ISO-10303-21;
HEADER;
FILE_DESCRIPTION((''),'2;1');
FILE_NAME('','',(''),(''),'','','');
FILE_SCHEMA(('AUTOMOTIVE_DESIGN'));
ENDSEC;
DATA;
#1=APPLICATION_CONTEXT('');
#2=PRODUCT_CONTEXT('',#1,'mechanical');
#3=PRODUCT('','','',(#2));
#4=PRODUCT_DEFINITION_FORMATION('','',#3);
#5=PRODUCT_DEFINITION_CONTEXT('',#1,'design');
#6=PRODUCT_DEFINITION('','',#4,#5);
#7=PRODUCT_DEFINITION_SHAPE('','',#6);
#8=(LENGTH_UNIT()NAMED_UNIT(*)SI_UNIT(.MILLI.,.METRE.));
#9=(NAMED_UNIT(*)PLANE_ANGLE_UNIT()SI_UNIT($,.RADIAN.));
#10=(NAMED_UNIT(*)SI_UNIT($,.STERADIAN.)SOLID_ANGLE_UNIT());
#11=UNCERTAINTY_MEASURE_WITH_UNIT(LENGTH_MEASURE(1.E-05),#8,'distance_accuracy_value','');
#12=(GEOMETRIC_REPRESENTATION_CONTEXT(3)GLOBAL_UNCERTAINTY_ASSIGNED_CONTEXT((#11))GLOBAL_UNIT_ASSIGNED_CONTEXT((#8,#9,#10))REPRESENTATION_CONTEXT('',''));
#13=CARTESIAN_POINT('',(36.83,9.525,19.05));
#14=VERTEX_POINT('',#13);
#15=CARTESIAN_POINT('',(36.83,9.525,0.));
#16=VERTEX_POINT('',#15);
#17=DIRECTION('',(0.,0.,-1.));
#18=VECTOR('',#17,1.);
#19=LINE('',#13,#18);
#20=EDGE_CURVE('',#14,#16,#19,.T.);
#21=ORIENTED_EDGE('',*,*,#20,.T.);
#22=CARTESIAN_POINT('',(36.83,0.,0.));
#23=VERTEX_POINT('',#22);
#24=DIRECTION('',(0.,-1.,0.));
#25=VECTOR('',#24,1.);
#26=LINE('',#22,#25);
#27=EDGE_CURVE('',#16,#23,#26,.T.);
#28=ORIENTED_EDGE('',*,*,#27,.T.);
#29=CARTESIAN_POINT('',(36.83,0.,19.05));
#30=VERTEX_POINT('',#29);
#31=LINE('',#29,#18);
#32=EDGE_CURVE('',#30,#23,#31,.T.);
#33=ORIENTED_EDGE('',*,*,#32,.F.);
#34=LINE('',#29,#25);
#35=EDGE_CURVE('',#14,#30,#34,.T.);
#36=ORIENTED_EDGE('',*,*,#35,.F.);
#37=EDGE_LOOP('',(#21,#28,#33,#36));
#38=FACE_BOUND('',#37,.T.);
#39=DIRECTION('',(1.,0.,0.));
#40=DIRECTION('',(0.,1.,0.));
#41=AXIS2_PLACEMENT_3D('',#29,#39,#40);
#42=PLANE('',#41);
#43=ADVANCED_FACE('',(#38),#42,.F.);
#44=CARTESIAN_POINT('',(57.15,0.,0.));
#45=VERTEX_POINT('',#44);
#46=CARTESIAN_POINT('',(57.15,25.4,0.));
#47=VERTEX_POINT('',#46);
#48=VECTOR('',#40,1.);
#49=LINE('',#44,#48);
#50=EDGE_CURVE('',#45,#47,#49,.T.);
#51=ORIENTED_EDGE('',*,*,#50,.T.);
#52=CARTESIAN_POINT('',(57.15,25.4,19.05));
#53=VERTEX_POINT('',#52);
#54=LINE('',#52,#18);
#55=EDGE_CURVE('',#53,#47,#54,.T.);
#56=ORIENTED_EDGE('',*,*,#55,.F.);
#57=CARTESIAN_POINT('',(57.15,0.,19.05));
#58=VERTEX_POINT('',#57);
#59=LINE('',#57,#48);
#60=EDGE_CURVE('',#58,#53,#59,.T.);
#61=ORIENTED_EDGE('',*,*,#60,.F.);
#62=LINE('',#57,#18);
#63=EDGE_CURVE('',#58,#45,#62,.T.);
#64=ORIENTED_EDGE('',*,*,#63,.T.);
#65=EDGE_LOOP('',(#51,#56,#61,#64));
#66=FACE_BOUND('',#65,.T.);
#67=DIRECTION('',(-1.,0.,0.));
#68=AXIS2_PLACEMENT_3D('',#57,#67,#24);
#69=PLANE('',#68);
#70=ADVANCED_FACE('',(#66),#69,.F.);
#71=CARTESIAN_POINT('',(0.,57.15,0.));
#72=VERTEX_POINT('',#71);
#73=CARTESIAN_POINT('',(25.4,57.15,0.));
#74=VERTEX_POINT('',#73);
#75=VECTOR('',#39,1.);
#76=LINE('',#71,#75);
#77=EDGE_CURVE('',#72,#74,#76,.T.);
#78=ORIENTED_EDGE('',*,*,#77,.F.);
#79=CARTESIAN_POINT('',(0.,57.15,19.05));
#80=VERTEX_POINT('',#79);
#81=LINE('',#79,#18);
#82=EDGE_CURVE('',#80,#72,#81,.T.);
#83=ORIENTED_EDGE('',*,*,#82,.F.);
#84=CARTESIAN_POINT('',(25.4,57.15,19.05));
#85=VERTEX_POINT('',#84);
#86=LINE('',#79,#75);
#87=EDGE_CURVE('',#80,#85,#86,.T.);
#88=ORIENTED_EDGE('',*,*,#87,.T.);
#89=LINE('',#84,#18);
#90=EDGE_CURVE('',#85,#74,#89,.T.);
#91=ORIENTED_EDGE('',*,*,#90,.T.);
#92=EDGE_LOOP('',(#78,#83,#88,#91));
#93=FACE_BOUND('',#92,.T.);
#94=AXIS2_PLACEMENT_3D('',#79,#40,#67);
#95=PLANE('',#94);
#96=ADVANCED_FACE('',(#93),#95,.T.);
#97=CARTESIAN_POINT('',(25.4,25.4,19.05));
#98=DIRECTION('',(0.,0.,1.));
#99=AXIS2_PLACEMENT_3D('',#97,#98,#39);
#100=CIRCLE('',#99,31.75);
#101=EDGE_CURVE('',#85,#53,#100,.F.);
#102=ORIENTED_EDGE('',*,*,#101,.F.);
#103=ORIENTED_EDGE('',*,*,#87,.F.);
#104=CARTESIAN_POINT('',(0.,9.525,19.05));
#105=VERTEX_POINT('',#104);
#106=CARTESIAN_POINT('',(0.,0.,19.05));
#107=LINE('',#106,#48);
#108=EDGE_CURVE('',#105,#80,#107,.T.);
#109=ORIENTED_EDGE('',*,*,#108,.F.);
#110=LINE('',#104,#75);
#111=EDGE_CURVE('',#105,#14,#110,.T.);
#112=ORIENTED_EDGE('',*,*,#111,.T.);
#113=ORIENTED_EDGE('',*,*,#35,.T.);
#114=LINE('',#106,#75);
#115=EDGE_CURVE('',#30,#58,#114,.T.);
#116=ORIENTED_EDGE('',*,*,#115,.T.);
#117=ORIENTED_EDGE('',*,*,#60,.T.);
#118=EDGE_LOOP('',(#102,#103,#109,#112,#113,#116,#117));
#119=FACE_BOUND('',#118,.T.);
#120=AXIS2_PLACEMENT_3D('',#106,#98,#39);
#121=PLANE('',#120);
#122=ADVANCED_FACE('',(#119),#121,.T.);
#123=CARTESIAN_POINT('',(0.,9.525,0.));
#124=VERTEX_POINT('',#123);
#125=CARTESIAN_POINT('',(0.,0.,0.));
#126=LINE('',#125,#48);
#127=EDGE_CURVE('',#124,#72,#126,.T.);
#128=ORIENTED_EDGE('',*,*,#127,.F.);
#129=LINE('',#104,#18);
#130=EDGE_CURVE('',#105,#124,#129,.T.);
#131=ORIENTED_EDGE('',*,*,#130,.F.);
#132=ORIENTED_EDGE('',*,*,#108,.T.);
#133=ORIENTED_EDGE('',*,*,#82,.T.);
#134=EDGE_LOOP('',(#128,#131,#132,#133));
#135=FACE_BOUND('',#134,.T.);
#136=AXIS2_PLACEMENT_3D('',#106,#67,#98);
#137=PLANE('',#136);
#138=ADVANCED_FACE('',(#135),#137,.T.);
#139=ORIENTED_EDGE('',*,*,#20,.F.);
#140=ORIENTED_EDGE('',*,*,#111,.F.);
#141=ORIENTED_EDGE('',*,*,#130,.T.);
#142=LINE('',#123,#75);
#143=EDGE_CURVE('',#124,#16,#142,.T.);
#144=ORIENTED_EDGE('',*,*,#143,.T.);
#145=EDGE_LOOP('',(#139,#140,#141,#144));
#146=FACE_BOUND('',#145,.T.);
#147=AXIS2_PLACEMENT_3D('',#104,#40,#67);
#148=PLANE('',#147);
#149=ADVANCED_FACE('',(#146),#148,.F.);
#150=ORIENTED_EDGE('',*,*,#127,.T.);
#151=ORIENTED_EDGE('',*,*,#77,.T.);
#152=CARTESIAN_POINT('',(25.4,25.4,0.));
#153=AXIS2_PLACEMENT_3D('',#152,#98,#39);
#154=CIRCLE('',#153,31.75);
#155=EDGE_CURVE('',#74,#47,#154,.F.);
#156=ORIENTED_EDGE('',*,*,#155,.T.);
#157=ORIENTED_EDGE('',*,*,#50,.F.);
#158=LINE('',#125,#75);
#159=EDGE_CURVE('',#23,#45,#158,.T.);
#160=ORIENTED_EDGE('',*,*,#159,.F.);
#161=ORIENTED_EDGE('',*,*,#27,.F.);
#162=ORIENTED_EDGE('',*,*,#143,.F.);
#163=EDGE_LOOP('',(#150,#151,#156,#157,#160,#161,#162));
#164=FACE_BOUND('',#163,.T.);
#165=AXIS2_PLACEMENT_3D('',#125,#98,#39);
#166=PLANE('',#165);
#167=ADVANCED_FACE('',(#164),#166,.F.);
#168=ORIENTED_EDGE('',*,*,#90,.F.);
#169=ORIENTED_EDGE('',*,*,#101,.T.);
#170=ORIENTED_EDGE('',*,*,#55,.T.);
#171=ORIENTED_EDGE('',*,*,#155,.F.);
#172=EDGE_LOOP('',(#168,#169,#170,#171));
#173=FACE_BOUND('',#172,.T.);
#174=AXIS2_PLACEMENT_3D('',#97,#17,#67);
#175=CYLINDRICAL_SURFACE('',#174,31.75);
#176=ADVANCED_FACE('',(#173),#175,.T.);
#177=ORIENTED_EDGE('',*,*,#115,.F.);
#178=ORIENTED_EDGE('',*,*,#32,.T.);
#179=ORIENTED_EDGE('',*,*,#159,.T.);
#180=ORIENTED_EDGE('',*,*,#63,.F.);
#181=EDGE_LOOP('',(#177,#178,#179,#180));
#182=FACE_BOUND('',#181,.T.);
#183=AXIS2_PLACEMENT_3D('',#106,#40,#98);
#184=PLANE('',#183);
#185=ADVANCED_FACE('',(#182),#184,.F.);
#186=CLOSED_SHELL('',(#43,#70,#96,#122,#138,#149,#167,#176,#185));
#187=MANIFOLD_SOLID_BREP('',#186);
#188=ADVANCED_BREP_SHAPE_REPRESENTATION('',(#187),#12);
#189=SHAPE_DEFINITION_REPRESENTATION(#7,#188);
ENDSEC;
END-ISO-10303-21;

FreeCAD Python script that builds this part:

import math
import FreeCAD as App
import Part
import Sketcher
from FreeCAD import Vector
Q = App.Units.Quantity

doc = App.newDocument("Part")
body = doc.addObject("PartDesign::Body", "Body")

sketch1 = body.newObject("Sketcher::SketchObject", "Sketch")
sketch1.AttachmentSupport = (doc.getObject("XY_Plane"), [""])
sketch1.MapMode = "FlatFace"
sketch1.addGeometry([
    Part.LineSegment(Vector(0, 57.15, 0), Vector(0, 9.525, 0)),
    Part.LineSegment(Vector(0, 9.525, 0), Vector(36.83, 9.525, 0)),
    Part.LineSegment(Vector(36.83, 9.525, 0), Vector(36.83, 0, 0)),
    Part.LineSegment(Vector(36.83, 0, 0), Vector(57.15, 0, 0)),
    Part.LineSegment(Vector(57.15, 0, 0), Vector(57.15, 25.4, 0)),
    Part.ArcOfCircle(Part.Circle(Vector(25.4, 25.4, 0), Vector(0, 0, 1), 31.75), math.radians(0), math.radians(90)),
    Part.LineSegment(Vector(25.4, 57.15, 0), Vector(0, 57.15, 0)),
], False)
sketch1.addConstraint([
    Sketcher.Constraint("Coincident", 0, 2, 1, 1),
    Sketcher.Constraint("Coincident", 1, 2, 2, 1),
    Sketcher.Constraint("Coincident", 2, 2, 3, 1),
    Sketcher.Constraint("Coincident", 3, 2, 4, 1),
    Sketcher.Constraint("Tangent", 4, 2, 5, 1),
    Sketcher.Constraint("Tangent", 5, 2, 6, 1),
    Sketcher.Constraint("Coincident", 6, 2, 0, 1),
    Sketcher.Constraint("Vertical", 0),
    Sketcher.Constraint("Horizontal", 1),
    Sketcher.Constraint("Vertical", 2),
    Sketcher.Constraint("Horizontal", 3),
    Sketcher.Constraint("Vertical", 4),
    Sketcher.Constraint("Horizontal", 6),
    Sketcher.Constraint("PointOnObject", 0, 2, -2),
    Sketcher.Constraint("PointOnObject", 2, 2, -1),
    Sketcher.Constraint("Equal", 6, 4),
    Sketcher.Constraint("DistanceX", 6, 2, 6, 1, Q("1 in")),
    Sketcher.Constraint("Radius", 5, Q("1.25 in")),
    Sketcher.Constraint("DistanceX", 3, 1, 3, 2, Q("0.8 in")),
    Sketcher.Constraint("DistanceY", 0, 2, 0, 1, Q("1.875 in")),
])
pad1 = body.newObject("PartDesign::Pad", "Pad")
pad1.Profile = sketch1
pad1.Length = Q("0.75 in")

doc.recompute()
